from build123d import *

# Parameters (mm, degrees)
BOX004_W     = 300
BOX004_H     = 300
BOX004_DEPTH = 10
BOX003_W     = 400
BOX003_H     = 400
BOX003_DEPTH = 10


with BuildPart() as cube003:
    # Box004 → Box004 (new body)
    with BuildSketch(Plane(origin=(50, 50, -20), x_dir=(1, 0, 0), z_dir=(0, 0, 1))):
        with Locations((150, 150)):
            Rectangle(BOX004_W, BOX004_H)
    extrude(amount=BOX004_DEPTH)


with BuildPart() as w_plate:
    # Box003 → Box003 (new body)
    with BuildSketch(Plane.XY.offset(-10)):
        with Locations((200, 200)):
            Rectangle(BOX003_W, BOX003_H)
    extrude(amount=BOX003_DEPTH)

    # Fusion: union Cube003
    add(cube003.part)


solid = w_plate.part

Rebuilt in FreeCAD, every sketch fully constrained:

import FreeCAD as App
import Part
import Sketcher
from FreeCAD import Vector
Q = App.Units.Quantity

doc = App.newDocument("Part")
body = doc.addObject("PartDesign::Body", "Body")

# Sketch on XY plane
sketch1 = body.newObject("Sketcher::SketchObject", "Sketch")
sketch1.AttachmentSupport = (doc.getObject("XY_Plane"), [""])
sketch1.MapMode = "FlatFace"
sketch1.AttachmentOffset = App.Placement(Vector(0, 0, -20), App.Rotation())
sketch1.addGeometry([
    Part.LineSegment(Vector(50, 350, 0), Vector(50, 50, 0)),
    Part.LineSegment(Vector(50, 50, 0), Vector(350, 50, 0)),
    Part.LineSegment(Vector(350, 50, 0), Vector(350, 350, 0)),
    Part.LineSegment(Vector(350, 350, 0), Vector(50, 350, 0)),
], False)
sketch1.addConstraint([
    Sketcher.Constraint("Coincident", 0, 2, 1, 1),
    Sketcher.Constraint("Coincident", 1, 2, 2, 1),
    Sketcher.Constraint("Coincident", 2, 2, 3, 1),
    Sketcher.Constraint("Coincident", 3, 2, 0, 1),
    Sketcher.Constraint("Vertical", 0),
    Sketcher.Constraint("Horizontal", 1),
    Sketcher.Constraint("Vertical", 2),
    Sketcher.Constraint("Horizontal", 3),
    Sketcher.Constraint("Equal", 3, 0),
    Sketcher.Constraint("DistanceX", 1, 1, 1, 2, Q("300 mm")),
    Sketcher.Constraint("DistanceX", -1, 1, 0, 2, Q("50 mm")),
    Sketcher.Constraint("DistanceY", -1, 1, 0, 2, Q("50 mm")),
])
pad1 = body.newObject("PartDesign::Pad", "Pad")
pad1.Profile = sketch1
pad1.Length = 10
body2 = doc.addObject("PartDesign::Body", "Body001")

# Sketch on XY plane
sketch2 = body2.newObject("Sketcher::SketchObject", "Sketch001")
sketch2.AttachmentSupport = (doc.getObject("XY_Plane001"), [""])
sketch2.MapMode = "FlatFace"
sketch2.AttachmentOffset = App.Placement(Vector(0, 0, -10), App.Rotation())
sketch2.addGeometry([
    Part.LineSegment(Vector(0, 400, 0), Vector(0, 0, 0)),
    Part.LineSegment(Vector(0, 0, 0), Vector(400, 0, 0)),
    Part.LineSegment(Vector(400, 0, 0), Vector(400, 400, 0)),
    Part.LineSegment(Vector(400, 400, 0), Vector(0, 400, 0)),
], False)
sketch2.addConstraint([
    Sketcher.Constraint("Coincident", 0, 2, 1, 1),
    Sketcher.Constraint("Coincident", 1, 2, 2, 1),
    Sketcher.Constraint("Coincident", 2, 2, 3, 1),
    Sketcher.Constraint("Coincident", 3, 2, 0, 1),
    Sketcher.Constraint("Vertical", 0),
    Sketcher.Constraint("Horizontal", 1),
    Sketcher.Constraint("Vertical", 2),
    Sketcher.Constraint("Horizontal", 3),
    Sketcher.Constraint("Coincident", 0, 2, -1, 1),
    Sketcher.Constraint("Equal", 3, 0),
    Sketcher.Constraint("DistanceX", 1, 1, 1, 2, Q("400 mm")),
])
pad2 = body2.newObject("PartDesign::Pad", "Pad001")
pad2.Profile = sketch2
pad2.Length = 10
doc.recompute()

boolean = body2.newObject("PartDesign::Boolean", "Boolean")
boolean.Type = "Fuse"
boolean.addObjects([body])

doc.recompute()
